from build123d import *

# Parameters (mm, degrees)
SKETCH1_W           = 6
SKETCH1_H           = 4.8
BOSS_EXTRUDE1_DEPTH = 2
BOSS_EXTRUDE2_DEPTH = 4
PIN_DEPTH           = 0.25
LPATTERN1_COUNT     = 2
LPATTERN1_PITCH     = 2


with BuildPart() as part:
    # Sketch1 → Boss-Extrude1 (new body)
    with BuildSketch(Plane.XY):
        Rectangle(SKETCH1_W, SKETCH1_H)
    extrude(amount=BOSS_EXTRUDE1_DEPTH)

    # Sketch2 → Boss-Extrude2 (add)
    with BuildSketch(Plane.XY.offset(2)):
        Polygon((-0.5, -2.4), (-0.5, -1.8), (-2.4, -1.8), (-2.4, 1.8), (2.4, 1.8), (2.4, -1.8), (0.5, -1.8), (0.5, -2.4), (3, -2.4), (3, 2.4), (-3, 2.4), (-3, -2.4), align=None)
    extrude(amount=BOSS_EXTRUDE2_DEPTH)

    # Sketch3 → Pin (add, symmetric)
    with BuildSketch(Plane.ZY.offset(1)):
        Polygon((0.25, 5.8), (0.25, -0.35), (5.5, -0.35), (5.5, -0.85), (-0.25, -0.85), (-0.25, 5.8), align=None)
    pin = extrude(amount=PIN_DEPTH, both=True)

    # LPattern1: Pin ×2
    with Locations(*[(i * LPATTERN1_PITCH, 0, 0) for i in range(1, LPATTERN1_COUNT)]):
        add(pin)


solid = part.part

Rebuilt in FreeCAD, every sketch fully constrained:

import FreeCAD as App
import Part
import Sketcher
Q = App.Units.Quantity

doc = App.newDocument("Part")
body = doc.addObject("PartDesign::Body", "Body")

# Sketch on XY plane
sketch1 = body.newObject("Sketcher::SketchObject", "Sketch")
sketch1.AttachmentSupport = (doc.getObject("XY_Plane"), [""])
sketch1.MapMode = "FlatFace"
sketch1.addGeometry([
    Part.LineSegment(App.Vector(-3, 2.4, 0), App.Vector(-3, -2.4, 0)),
    Part.LineSegment(App.Vector(-3, -2.4, 0), App.Vector(3, -2.4, 0)),
    Part.LineSegment(App.Vector(3, -2.4, 0), App.Vector(3, 2.4, 0)),
    Part.LineSegment(App.Vector(3, 2.4, 0), App.Vector(-3, 2.4, 0)),
], False)
sketch1.addConstraint([
    Sketcher.Constraint("Coincident", 0, 2, 1, 1),
    Sketcher.Constraint("Coincident", 1, 2, 2, 1),
    Sketcher.Constraint("Coincident", 2, 2, 3, 1),
    Sketcher.Constraint("Coincident", 3, 2, 0, 1),
    Sketcher.Constraint("Vertical", 0),
    Sketcher.Constraint("Horizontal", 1),
    Sketcher.Constraint("Vertical", 2),
    Sketcher.Constraint("Horizontal", 3),
    Sketcher.Constraint("Symmetric", 0, 2, 2, 2, -1, 1),
    Sketcher.Constraint("DistanceX", 1, 1, 1, 2, Q("6 mm")),
    Sketcher.Constraint("DistanceY", 0, 2, 0, 1, Q("4.8 mm")),
])
pad1 = body.newObject("PartDesign::Pad", "Pad")
pad1.Profile = sketch1
pad1.Length = 2

# Sketch on XY plane
sketch2 = body.newObject("Sketcher::SketchObject", "Sketch001")
sketch2.AttachmentSupport = (doc.getObject("XY_Plane"), [""])
sketch2.MapMode = "FlatFace"
sketch2.AttachmentOffset = App.Placement(App.Vector(0, 0, 2), App.Rotation())
sketch2.addGeometry([
    Part.LineSegment(App.Vector(-0.5, -2.4, 0), App.Vector(-0.5, -1.8, 0)),  # 0
    Part.LineSegment(App.Vector(-0.5, -1.8, 0), App.Vector(-2.4, -1.8, 0)),  # 1
    Part.LineSegment(App.Vector(-2.4, -1.8, 0), App.Vector(-2.4, 1.8, 0)),  # 2
    Part.LineSegment(App.Vector(-2.4, 1.8, 0), App.Vector(2.4, 1.8, 0)),  # 3
    Part.LineSegment(App.Vector(2.4, 1.8, 0), App.Vector(2.4, -1.8, 0)),  # 4
    Part.LineSegment(App.Vector(2.4, -1.8, 0), App.Vector(0.5, -1.8, 0)),  # 5
    Part.LineSegment(App.Vector(0.5, -1.8, 0), App.Vector(0.5, -2.4, 0)),  # 6
    Part.LineSegment(App.Vector(0.5, -2.4, 0), App.Vector(3, -2.4, 0)),  # 7
    Part.LineSegment(App.Vector(3, -2.4, 0), App.Vector(3, 2.4, 0)),  # 8
    Part.LineSegment(App.Vector(3, 2.4, 0), App.Vector(-3, 2.4, 0)),  # 9
    Part.LineSegment(App.Vector(-3, 2.4, 0), App.Vector(-3, -2.4, 0)),  # 10
    Part.LineSegment(App.Vector(-3, -2.4, 0), App.Vector(-0.5, -2.4, 0)),  # 11
], False)
sketch2.addConstraint([
    Sketcher.Constraint("Coincident", 0, 2, 1, 1),
    Sketcher.Constraint("Coincident", 1, 2, 2, 1),
    Sketcher.Constraint("Coincident", 2, 2, 3, 1),
    Sketcher.Constraint("Coincident", 3, 2, 4, 1),
    Sketcher.Constraint("Coincident", 4, 2, 5, 1),
    Sketcher.Constraint("Coincident", 5, 2, 6, 1),
    Sketcher.Constraint("Coincident", 6, 2, 7, 1),
    Sketcher.Constraint("Coincident", 7, 2, 8, 1),
    Sketcher.Constraint("Coincident", 8, 2, 9, 1),
    Sketcher.Constraint("Coincident", 9, 2, 10, 1),
    Sketcher.Constraint("Coincident", 10, 2, 11, 1),
    Sketcher.Constraint("Coincident", 11, 2, 0, 1),
    Sketcher.Constraint("Vertical", 0),
    Sketcher.Constraint("Horizontal", 1),
    Sketcher.Constraint("Vertical", 2),
    Sketcher.Constraint("Horizontal", 3),
    Sketcher.Constraint("Vertical", 4),
    Sketcher.Constraint("Horizontal", 5),
    Sketcher.Constraint("Vertical", 6),
    Sketcher.Constraint("Horizontal", 7),
    Sketcher.Constraint("Vertical", 8),
    Sketcher.Constraint("Horizontal", 9),
    Sketcher.Constraint("Vertical", 10),
    Sketcher.Constraint("Horizontal", 11),
    Sketcher.Constraint("Symmetric", 1, 2, 3, 2, -1, 1),
    Sketcher.Constraint("Symmetric", 7, 2, 9, 2, -1, 1),
    Sketcher.Constraint("Symmetric", 0, 2, 5, 2, -2),
    Sketcher.Constraint("Horizontal", 7, 2, 10, 2),
    Sketcher.Constraint("Equal", 3, 8),
    Sketcher.Constraint("DistanceX", 9, 2, 9, 1, Q("6 mm")),
    Sketcher.Constraint("DistanceX", 1, 2, 1, 1, Q("1.9 mm")),
    Sketcher.Constraint("DistanceX", 3, 1, 3, 2, Q("4.8 mm")),
    Sketcher.Constraint("DistanceY", 0, 1, 0, 2, Q("0.6 mm")),
])
pad2 = body.newObject("PartDesign::Pad", "Pad001")
pad2.Profile = sketch2
pad2.Length = 4

# Sketch on YZ plane
sketch3 = body.newObject("Sketcher::SketchObject", "Sketch002")
sketch3.AttachmentSupport = (doc.getObject("YZ_Plane"), [""])
sketch3.MapMode = "FlatFace"
sketch3.AttachmentOffset = App.Placement(App.Vector(0, 0, -1), App.Rotation())
sketch3.addGeometry([
    Part.LineSegment(App.Vector(-0.3, 0.2, 0), App.Vector(5.8, 0.2, 0)),  # 0
    Part.LineSegment(App.Vector(5.8, 0.2, 0), App.Vector(5.8, -0.2, 0)),  # 1
    Part.LineSegment(App.Vector(5.8, -0.2, 0), App.Vector(-0.8, -0.2, 0)),  # 2
    Part.LineSegment(App.Vector(-0.8, -0.2, 0), App.Vector(-0.8, 5.5, 0)),  # 3
    Part.LineSegment(App.Vector(-0.8, 5.5, 0), App.Vector(-0.3, 5.5, 0)),  # 4
    Part.LineSegment(App.Vector(-0.3, 5.5, 0), App.Vector(-0.3, 0.2, 0)),  # 5
], False)
sketch3.addConstraint([
    Sketcher.Constraint("Coincident", 0, 2, 1, 1),
    Sketcher.Constraint("Coincident", 1, 2, 2, 1),
    Sketcher.Constraint("Coincident", 2, 2, 3, 1),
    Sketcher.Constraint("Coincident", 3, 2, 4, 1),
    Sketcher.Constraint("Coincident", 4, 2, 5, 1),
    Sketcher.Constraint("Coincident", 5, 2, 0, 1),
    Sketcher.Constraint("Horizontal", 0),
    Sketcher.Constraint("Vertical", 1),
    Sketcher.Constraint("Horizontal", 2),
    Sketcher.Constraint("Vertical", 3),
    Sketcher.Constraint("Horizontal", 4),
    Sketcher.Constraint("Vertical", 5),
    Sketcher.Constraint("Equal", 4, 1),
    Sketcher.Constraint("DistanceX", 4, 1, 4, 2, Q("0.5 mm")),
    Sketcher.Constraint("DistanceX", 0, 1, 0, 2, Q("6.15 mm")),
    Sketcher.Constraint("DistanceY", 3, 1, 3, 2, Q("5.75 mm")),
    Sketcher.Constraint("DistanceX", -1, 1, 0, 2, Q("5.8 mm")),
    Sketcher.Constraint("DistanceY", -1, 1, 3, 2, Q("5.5 mm")),
])
pad3 = body.newObject("PartDesign::Pad", "Pad002")
pad3.Profile = sketch3
pad3.Length = 0.5
pad3.Midplane = True
doc.recompute()

linearpattern = body.newObject("PartDesign::LinearPattern", "LinearPattern")
linearpattern.Originals = [pad3]
linearpattern.Direction = (doc.getObject("X_Axis"), [""])
linearpattern.Mode = "offset"
linearpattern.Offset = 2
linearpattern.Occurrences = 2
body.Tip = linearpattern

doc.recompute()
